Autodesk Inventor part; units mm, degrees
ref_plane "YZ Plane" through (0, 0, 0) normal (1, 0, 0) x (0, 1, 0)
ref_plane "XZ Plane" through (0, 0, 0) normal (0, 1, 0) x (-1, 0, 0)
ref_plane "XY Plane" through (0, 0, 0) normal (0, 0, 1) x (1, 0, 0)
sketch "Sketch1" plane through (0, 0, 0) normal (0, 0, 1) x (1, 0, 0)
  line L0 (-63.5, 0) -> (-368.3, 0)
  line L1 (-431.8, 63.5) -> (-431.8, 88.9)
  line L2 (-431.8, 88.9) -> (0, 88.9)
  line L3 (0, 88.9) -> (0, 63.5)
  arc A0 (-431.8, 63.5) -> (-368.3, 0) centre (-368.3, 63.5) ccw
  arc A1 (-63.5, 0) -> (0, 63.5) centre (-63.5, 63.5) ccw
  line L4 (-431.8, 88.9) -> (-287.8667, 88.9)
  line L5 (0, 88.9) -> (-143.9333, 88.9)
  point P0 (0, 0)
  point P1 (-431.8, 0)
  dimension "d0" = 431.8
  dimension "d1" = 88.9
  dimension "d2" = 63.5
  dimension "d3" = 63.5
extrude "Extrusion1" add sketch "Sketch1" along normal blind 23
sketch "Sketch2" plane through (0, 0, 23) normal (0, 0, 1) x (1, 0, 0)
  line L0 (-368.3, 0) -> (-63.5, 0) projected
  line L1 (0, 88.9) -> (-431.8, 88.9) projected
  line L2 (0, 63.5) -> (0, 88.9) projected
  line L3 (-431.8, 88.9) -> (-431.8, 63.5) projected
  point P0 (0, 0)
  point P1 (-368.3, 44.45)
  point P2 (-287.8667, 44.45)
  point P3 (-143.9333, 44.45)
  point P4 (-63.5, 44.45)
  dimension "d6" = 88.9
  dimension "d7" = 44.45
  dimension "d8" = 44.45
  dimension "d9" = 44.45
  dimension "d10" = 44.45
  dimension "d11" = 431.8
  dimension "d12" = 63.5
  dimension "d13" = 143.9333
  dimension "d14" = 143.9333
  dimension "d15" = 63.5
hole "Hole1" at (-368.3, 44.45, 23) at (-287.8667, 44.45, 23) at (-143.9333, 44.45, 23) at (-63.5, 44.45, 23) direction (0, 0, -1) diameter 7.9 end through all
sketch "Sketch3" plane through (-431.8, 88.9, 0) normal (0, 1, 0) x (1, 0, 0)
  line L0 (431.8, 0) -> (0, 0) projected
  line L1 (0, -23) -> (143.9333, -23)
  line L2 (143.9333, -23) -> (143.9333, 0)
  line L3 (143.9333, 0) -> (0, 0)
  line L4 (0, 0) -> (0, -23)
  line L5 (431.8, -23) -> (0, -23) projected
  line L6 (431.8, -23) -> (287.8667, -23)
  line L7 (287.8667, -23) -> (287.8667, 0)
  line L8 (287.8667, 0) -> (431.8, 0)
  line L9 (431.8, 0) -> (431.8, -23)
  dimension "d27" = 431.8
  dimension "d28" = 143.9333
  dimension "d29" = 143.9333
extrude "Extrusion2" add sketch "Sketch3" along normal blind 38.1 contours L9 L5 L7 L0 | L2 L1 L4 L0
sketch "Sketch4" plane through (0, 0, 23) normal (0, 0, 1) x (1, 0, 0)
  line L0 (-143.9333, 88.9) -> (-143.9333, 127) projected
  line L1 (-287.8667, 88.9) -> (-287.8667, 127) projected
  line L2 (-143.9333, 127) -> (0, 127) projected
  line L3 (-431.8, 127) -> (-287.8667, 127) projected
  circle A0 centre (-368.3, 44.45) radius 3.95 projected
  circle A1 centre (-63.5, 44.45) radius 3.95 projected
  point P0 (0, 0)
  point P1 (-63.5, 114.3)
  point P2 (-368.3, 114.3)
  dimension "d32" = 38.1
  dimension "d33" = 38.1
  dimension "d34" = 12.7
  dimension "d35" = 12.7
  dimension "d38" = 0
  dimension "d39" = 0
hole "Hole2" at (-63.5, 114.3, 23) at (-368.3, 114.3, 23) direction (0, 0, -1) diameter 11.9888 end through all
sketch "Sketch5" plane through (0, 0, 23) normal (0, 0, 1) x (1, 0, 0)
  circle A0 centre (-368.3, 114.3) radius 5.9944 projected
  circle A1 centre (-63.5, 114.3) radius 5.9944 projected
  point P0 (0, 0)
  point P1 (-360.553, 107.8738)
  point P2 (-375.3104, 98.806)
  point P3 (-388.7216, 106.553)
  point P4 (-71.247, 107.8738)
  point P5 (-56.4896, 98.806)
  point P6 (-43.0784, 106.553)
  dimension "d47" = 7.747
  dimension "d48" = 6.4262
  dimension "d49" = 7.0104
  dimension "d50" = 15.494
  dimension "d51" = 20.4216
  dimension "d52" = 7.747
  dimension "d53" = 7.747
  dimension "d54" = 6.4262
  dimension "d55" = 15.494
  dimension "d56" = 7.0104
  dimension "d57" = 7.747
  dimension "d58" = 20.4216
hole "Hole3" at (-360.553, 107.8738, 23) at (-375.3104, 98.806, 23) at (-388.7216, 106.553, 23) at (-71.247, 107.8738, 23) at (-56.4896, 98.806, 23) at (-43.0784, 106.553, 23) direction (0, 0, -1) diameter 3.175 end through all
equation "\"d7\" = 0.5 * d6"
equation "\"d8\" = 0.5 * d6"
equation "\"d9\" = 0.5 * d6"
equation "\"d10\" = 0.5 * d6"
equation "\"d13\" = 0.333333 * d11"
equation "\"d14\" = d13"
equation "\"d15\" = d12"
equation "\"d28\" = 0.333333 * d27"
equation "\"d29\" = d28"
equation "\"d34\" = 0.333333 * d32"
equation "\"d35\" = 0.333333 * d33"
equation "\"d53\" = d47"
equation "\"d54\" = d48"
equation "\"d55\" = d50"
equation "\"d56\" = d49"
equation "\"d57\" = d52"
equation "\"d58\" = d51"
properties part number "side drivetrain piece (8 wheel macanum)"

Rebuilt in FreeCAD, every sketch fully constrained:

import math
import FreeCAD as App
import Part
import Sketcher

V = App.Vector
Q = App.Units.Quantity


def add_polygon(sketch, points):
    """Adds a closed chain of lines whose ends are joined by coincident constraints."""
    first, n = sketch.GeometryCount, len(points)
    for a, b in zip(points, points[1:] + points[:1]):
        sketch.addGeometry(Part.LineSegment(App.Vector(*a, 0), App.Vector(*b, 0)), False)
    for i in range(n):
        sketch.addConstraint(Sketcher.Constraint("Coincident", first + i, 2, first + (i + 1) % n, 1))

doc = App.newDocument("Part")
body = doc.addObject("PartDesign::Body", "Body")

# Sketch on XY plane
sketch1 = body.newObject("Sketcher::SketchObject", "Sketch")
sketch1.AttachmentSupport = (doc.getObject("XY_Plane"), [""])
sketch1.MapMode = "FlatFace"
sketch1.addGeometry(Part.LineSegment(V(-368, 0, 0), V(-64, 0, 0)), False)
sketch1.addGeometry(Part.ArcOfCircle(Part.Circle(V(-64, 64, 0), V(0, 0, 1), 64), math.radians(-90), math.radians(0)), False)
sketch1.addGeometry(Part.LineSegment(V(0, 64, 0), V(0, 89, 0)), False)
sketch1.addGeometry(Part.LineSegment(V(0, 89, 0), V(-432, 89, 0)), False)
sketch1.addGeometry(Part.LineSegment(V(-432, 89, 0), V(-432, 64, 0)), False)
sketch1.addGeometry(Part.ArcOfCircle(Part.Circle(V(-368, 64, 0), V(0, 0, 1), 64), math.radians(180), math.radians(270)), False)
sketch1.addConstraint(Sketcher.Constraint("Tangent", 0, 2, 1, 1))
sketch1.addConstraint(Sketcher.Constraint("Tangent", 1, 2, 2, 1))
sketch1.addConstraint(Sketcher.Constraint("Coincident", 2, 2, 3, 1))
sketch1.addConstraint(Sketcher.Constraint("Coincident", 3, 2, 4, 1))
sketch1.addConstraint(Sketcher.Constraint("Tangent", 4, 2, 5, 1))
sketch1.addConstraint(Sketcher.Constraint("Tangent", 5, 2, 0, 1))
sketch1.addConstraint(Sketcher.Constraint("Horizontal", 0))
sketch1.addConstraint(Sketcher.Constraint("Vertical", 2))
sketch1.addConstraint(Sketcher.Constraint("Horizontal", 3))
sketch1.addConstraint(Sketcher.Constraint("Vertical", 4))
sketch1.addConstraint(Sketcher.Constraint("Equal", 1, 5))
sketch1.addConstraint(Sketcher.Constraint("PointOnObject", 0, 2, -1))
sketch1.addConstraint(Sketcher.Constraint("PointOnObject", 1, 2, -2))
sketch1.addConstraint(Sketcher.Constraint("Radius", 1, Q("2.5 in")))
sketch1.addConstraint(Sketcher.Constraint("DistanceX", 3, 2, 3, 1, Q("17 in")))
sketch1.addConstraint(Sketcher.Constraint("DistanceY", -1, 1, 2, 2, Q("3.5 in")))
pad1 = body.newObject("PartDesign::Pad", "Pad")
pad1.Profile = sketch1
pad1.Length = Q("0.9055118 in")

# Sketch on XY plane
sketch2 = body.newObject("Sketcher::SketchObject", "Sketch001")
sketch2.AttachmentSupport = (doc.getObject("XY_Plane"), [""])
sketch2.MapMode = "FlatFace"
sketch2.AttachmentOffset = App.Placement(V(0, 0, 0.9055118 * 25.4), App.Rotation())
sketch2.addGeometry(Part.Circle(V(-368.3, 44.5, 0), V(0, 0, 1), 4), False)
sketch2.addGeometry(Part.Circle(V(-287.9, 44.5, 0), V(0, 0, 1), 4), False)
sketch2.addGeometry(Part.Circle(V(-143.9, 44.5, 0), V(0, 0, 1), 4), False)
sketch2.addGeometry(Part.Circle(V(-63.5, 44.5, 0), V(0, 0, 1), 4), False)
sketch2.addConstraint(Sketcher.Constraint("Equal", 0, 1))
sketch2.addConstraint(Sketcher.Constraint("Equal", 1, 2))
sketch2.addConstraint(Sketcher.Constraint("Equal", 2, 3))
sketch2.addConstraint(Sketcher.Constraint("Horizontal", 0, 3, 1, 3))
sketch2.addConstraint(Sketcher.Constraint("Horizontal", 1, 3, 2, 3))
sketch2.addConstraint(Sketcher.Constraint("Horizontal", 2, 3, 3, 3))
sketch2.addConstraint(Sketcher.Constraint("DistanceX", 0, 3, 3, 3, Q("12 in")))
sketch2.addConstraint(Sketcher.Constraint("DistanceX", 0, 3, -1, 1, Q("14.5 in")))
sketch2.addConstraint(Sketcher.Constraint("Diameter", 0, 7.9))
sketch2.addConstraint(Sketcher.Constraint("DistanceY", -1, 1, 0, 3, Q("1.75 in")))
sketch2.addConstraint(Sketcher.Constraint("DistanceX", 1, 3, -1, 1, 287.8667))
sketch2.addConstraint(Sketcher.Constraint("DistanceX", 2, 3, -1, 1, 143.9333))
doc.recompute()
hole = body.newObject("PartDesign::Hole", "Hole")
hole.Profile = sketch2
hole.ThreadType = "None"
hole.Diameter = 7.9
hole.DepthType = "ThroughAll"

# Sketch on XZ plane
sketch3 = body.newObject("Sketcher::SketchObject", "Sketch002")
sketch3.AttachmentSupport = (doc.getObject("XZ_Plane"), [""])
sketch3.MapMode = "FlatFace"
sketch3.AttachmentOffset = App.Placement(V(0, 0, -3.5 * 25.4), App.Rotation())
add_polygon(sketch3, [(0, 23), (0, 0), (-144, 0), (-144, 23)])  # lines 0-3
add_polygon(sketch3, [(-288, 23), (-288, 0), (-432, 0), (-432, 23)])  # lines 4-7
sketch3.addConstraint(Sketcher.Constraint("Vertical", 0))
sketch3.addConstraint(Sketcher.Constraint("Horizontal", 1))
sketch3.addConstraint(Sketcher.Constraint("Vertical", 2))
sketch3.addConstraint(Sketcher.Constraint("Horizontal", 3))
sketch3.addConstraint(Sketcher.Constraint("Vertical", 4))
sketch3.addConstraint(Sketcher.Constraint("Horizontal", 5))
sketch3.addConstraint(Sketcher.Constraint("Vertical", 6))
sketch3.addConstraint(Sketcher.Constraint("Horizontal", 7))
sketch3.addConstraint(Sketcher.Constraint("Coincident", 0, 2, -1, 1))
sketch3.addConstraint(Sketcher.Constraint("PointOnObject", 4, 2, -1))
sketch3.addConstraint(Sketcher.Constraint("Horizontal", 3, 2, 6, 2))
sketch3.addConstraint(Sketcher.Constraint("Equal", 3, 5))
sketch3.addConstraint(Sketcher.Constraint("DistanceX", 5, 2, -1, 1, Q("17 in")))
sketch3.addConstraint(Sketcher.Constraint("DistanceX", 1, 2, 1, 1, 143.9333))
sketch3.addConstraint(Sketcher.Constraint("DistanceY", 0, 2, 0, 1, Q("0.9055 in")))
pad2 = body.newObject("PartDesign::Pad", "Pad001")
pad2.Profile = sketch3
pad2.Length = Q("1.5 in")
pad2.Reversed = True

# Sketch on XY plane
sketch4 = body.newObject("Sketcher::SketchObject", "Sketch003")
sketch4.AttachmentSupport = (doc.getObject("XY_Plane"), [""])
sketch4.MapMode = "FlatFace"
sketch4.AttachmentOffset = App.Placement(V(0, 0, 0.9055118 * 25.4), App.Rotation())
sketch4.addGeometry(Part.Circle(V(-64, 114, 0), V(0, 0, 1), 6), False)
sketch4.addGeometry(Part.Circle(V(-368, 114, 0), V(0, 0, 1), 6), False)
sketch4.addConstraint(Sketcher.Constraint("Equal", 0, 1))
sketch4.addConstraint(Sketcher.Constraint("Horizontal", 0, 3, 1, 3))
sketch4.addConstraint(Sketcher.Constraint("Diameter", 0, Q("0.472 in")))
sketch4.addConstraint(Sketcher.Constraint("DistanceX", 1, 3, 0, 3, Q("12 in")))
sketch4.addConstraint(Sketcher.Constraint("DistanceX", 0, 3, -1, 1, Q("2.5 in")))
sketch4.addConstraint(Sketcher.Constraint("DistanceY", -1, 1, 0, 3, Q("4.5 in")))
doc.recompute()
hole2 = body.newObject("PartDesign::Hole", "Hole001")
hole2.Profile = sketch4
hole2.ThreadType = "None"
hole2.Diameter = Q("0.472 in")
hole2.DepthType = "ThroughAll"

# Sketch on XY plane
sketch5 = body.newObject("Sketcher::SketchObject", "Sketch004")
sketch5.AttachmentSupport = (doc.getObject("XY_Plane"), [""])
sketch5.MapMode = "FlatFace"
sketch5.AttachmentOffset = App.Placement(V(0, 0, 0.9055118 * 25.4), App.Rotation())
sketch5.addGeometry(Part.Circle(V(-360.6, 107.9, 0), V(0, 0, 1), 1.6), False)
sketch5.addGeometry(Part.Circle(V(-375.3, 98.8, 0), V(0, 0, 1), 1.6), False)
sketch5.addGeometry(Part.Circle(V(-388.7, 106.6, 0), V(0, 0, 1), 1.6), False)
sketch5.addGeometry(Part.Circle(V(-71.2, 107.9, 0), V(0, 0, 1), 1.6), False)
sketch5.addGeometry(Part.Circle(V(-56.5, 98.8, 0), V(0, 0, 1), 1.6), False)
sketch5.addGeometry(Part.Circle(V(-43.1, 106.6, 0), V(0, 0, 1), 1.6), False)
sketch5.addConstraint(Sketcher.Constraint("Equal", 0, 1))
sketch5.addConstraint(Sketcher.Constraint("Equal", 1, 2))
sketch5.addConstraint(Sketcher.Constraint("Equal", 2, 3))
sketch5.addConstraint(Sketcher.Constraint("Equal", 3, 4))
sketch5.addConstraint(Sketcher.Constraint("Equal", 4, 5))
sketch5.addConstraint(Sketcher.Constraint("Horizontal", 0, 3, 3, 3))
sketch5.addConstraint(Sketcher.Constraint("Horizontal", 1, 3, 4, 3))
sketch5.addConstraint(Sketcher.Constraint("Horizontal", 2, 3, 5, 3))
sketch5.addConstraint(Sketcher.Constraint("Diameter", 0, Q("0.125 in")))
sketch5.addConstraint(Sketcher.Constraint("DistanceY", -1, 1, 1, 3, Q("3.89 in")))
sketch5.addConstraint(Sketcher.Constraint("DistanceX", 0, 3, 3, 3, Q("11.39 in")))
sketch5.addConstraint(Sketcher.Constraint("DistanceX", 2, 3, 4, 3, Q("13.08 in")))
sketch5.addConstraint(Sketcher.Constraint("DistanceX", 1, 3, 5, 3, Q("13.08 in")))
sketch5.addConstraint(Sketcher.Constraint("DistanceX", 0, 3, -1, 1, Q("14.195 in")))
sketch5.addConstraint(Sketcher.Constraint("DistanceY", -1, 1, 0, 3, Q("4.247 in")))
sketch5.addConstraint(Sketcher.Constraint("DistanceX", 1, 3, -1, 1, Q("14.776 in")))
sketch5.addConstraint(Sketcher.Constraint("DistanceX", 2, 3, -1, 1, Q("15.304 in")))
sketch5.addConstraint(Sketcher.Constraint("DistanceY", -1, 1, 2, 3, Q("4.195 in")))
doc.recompute()
hole3 = body.newObject("PartDesign::Hole", "Hole002")
hole3.Profile = sketch5
hole3.ThreadType = "None"
hole3.Diameter = Q("0.125 in")
hole3.DepthType = "ThroughAll"

doc.recompute()
